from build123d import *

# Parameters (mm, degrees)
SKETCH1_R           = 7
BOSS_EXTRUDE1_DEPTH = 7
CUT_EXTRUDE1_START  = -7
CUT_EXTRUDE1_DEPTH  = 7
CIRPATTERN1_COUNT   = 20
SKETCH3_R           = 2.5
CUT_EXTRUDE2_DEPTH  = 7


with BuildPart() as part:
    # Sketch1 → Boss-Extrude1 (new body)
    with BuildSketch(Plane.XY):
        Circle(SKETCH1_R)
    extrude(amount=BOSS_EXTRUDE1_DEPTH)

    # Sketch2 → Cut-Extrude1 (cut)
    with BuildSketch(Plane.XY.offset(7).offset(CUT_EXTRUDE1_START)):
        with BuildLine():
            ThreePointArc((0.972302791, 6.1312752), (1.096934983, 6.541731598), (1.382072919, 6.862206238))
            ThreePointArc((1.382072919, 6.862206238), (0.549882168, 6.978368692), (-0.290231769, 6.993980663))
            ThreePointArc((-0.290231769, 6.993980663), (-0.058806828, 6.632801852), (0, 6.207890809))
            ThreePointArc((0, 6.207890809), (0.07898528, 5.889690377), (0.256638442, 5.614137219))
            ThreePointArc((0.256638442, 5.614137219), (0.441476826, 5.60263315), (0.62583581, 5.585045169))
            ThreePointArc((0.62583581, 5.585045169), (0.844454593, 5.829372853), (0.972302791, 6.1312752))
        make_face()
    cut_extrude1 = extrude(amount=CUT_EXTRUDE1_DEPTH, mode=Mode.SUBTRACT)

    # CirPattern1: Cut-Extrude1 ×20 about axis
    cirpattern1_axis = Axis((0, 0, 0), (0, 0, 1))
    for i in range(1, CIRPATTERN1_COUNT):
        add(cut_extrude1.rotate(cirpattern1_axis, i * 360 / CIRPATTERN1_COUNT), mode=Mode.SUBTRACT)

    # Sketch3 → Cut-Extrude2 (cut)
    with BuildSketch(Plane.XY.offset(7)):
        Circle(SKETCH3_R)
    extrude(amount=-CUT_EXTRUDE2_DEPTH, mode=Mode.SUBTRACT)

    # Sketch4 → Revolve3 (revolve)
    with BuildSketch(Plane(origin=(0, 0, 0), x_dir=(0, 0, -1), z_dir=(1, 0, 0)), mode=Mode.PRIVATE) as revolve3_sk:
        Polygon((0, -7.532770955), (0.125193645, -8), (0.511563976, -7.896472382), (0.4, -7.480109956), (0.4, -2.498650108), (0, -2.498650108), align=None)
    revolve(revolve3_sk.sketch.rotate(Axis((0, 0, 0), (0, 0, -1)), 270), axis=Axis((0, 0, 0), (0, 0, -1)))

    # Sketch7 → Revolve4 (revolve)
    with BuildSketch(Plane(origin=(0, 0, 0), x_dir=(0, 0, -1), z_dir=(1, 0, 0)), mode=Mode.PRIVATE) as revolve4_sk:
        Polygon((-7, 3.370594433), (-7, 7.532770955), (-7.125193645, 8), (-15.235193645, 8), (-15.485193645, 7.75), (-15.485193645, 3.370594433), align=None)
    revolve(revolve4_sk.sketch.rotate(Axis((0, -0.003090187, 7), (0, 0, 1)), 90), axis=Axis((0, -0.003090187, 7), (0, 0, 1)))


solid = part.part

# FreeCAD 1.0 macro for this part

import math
import FreeCAD as App
import Part
import Sketcher
Q = App.Units.Quantity


def add_polygon(sketch, points):
    """Adds a closed chain of lines whose ends are joined by coincident constraints."""
    first, n = sketch.GeometryCount, len(points)
    for a, b in zip(points, points[1:] + points[:1]):
        sketch.addGeometry(Part.LineSegment(App.Vector(*a, 0), App.Vector(*b, 0)), False)
    for i in range(n):
        sketch.addConstraint(Sketcher.Constraint("Coincident", first + i, 2, first + (i + 1) % n, 1))

doc = App.newDocument("Part")
body = doc.addObject("PartDesign::Body", "Body")

# Sketch on XY plane
sketch1 = body.newObject("Sketcher::SketchObject", "Sketch")
sketch1.AttachmentSupport = (doc.getObject("XY_Plane"), [""])
sketch1.MapMode = "FlatFace"
sketch1.addGeometry(Part.Circle(App.Vector(0, 0, 0), App.Vector(0, 0, 1), 7), False)
sketch1.addConstraint(Sketcher.Constraint("Coincident", 0, 3, -1, 1))
sketch1.addConstraint(Sketcher.Constraint("Diameter", 0, 14.0))
pad1 = body.newObject("PartDesign::Pad", "Pad")
pad1.Profile = sketch1
pad1.Length = 7

# Sketch on XY plane
sketch2 = body.newObject("Sketcher::SketchObject", "Sketch001")
sketch2.AttachmentSupport = (doc.getObject("XY_Plane"), [""])
sketch2.MapMode = "FlatFace"
sketch2.addGeometry(Part.ArcOfCircle(Part.Circle(App.Vector(1.969213, 6.052721, 0), App.Vector(0, 0, 1), 1), math.radians(125.954293), math.radians(175.494511)), False)
sketch2.addGeometry(Part.ArcOfCircle(Part.Circle(App.Vector(0, 0, 0), App.Vector(0, 0, 1), 7), math.radians(78.612762), math.radians(92.376261)), False)
sketch2.addGeometry(Part.ArcOfCircle(Part.Circle(App.Vector(-0.99691, 6.286445, 0), App.Vector(0, 0, 1), 1), math.radians(-4.505489), math.radians(45.034729)), False)
sketch2.addGeometry(Part.ArcOfCircle(Part.Circle(App.Vector(0.99691, 6.286445, 0), App.Vector(0, 0, 1), 1), math.radians(-175.494511), math.radians(-137.754537)), False)
sketch2.addGeometry(Part.ArcOfCircle(Part.Circle(App.Vector(0, 0, 0), App.Vector(0, 0, 1), 5.62), math.radians(83.606356), math.radians(87.382666)), False)
sketch2.addGeometry(Part.ArcOfCircle(Part.Circle(App.Vector(0, 6.365, 0), App.Vector(0, 0, 1), 1), math.radians(-51.25644), math.radians(-13.516466)), False)
sketch2.addConstraint(Sketcher.Constraint("Coincident", 0, 1, 1, 1))
sketch2.addConstraint(Sketcher.Constraint("Coincident", 1, 2, 2, 2))
sketch2.addConstraint(Sketcher.Constraint("Coincident", 2, 1, 3, 1))
sketch2.addConstraint(Sketcher.Constraint("Coincident", 3, 2, 4, 2))
sketch2.addConstraint(Sketcher.Constraint("Coincident", 4, 1, 5, 1))
sketch2.addConstraint(Sketcher.Constraint("Coincident", 5, 2, 0, 2))
sketch2.addConstraint(Sketcher.Constraint("Coincident", 1, 3, -1, 1))
sketch2.addConstraint(Sketcher.Constraint("Coincident", 4, 3, -1, 1))
sketch2.addConstraint(Sketcher.Constraint("Equal", 0, 2))
sketch2.addConstraint(Sketcher.Constraint("Equal", 2, 3))
sketch2.addConstraint(Sketcher.Constraint("Equal", 3, 5))
sketch2.addConstraint(Sketcher.Constraint("Symmetric", 2, 3, 3, 3, -2))
sketch2.addConstraint(Sketcher.Constraint("PointOnObject", 5, 3, -2))
sketch2.addConstraint(Sketcher.Constraint("Radius", 0, 1.0))
sketch2.addConstraint(Sketcher.Constraint("Radius", 1, 7.0))
sketch2.addConstraint(Sketcher.Constraint("Radius", 4, 5.62))
sketch2.addConstraint(Sketcher.Constraint("DistanceY", -1, 1, 5, 3, 6.365))
sketch2.addConstraint(Sketcher.Constraint("DistanceY", 4, 1, 3, 3, 0.7014))
sketch2.addConstraint(Sketcher.Constraint("DistanceY", -1, 1, 0, 3, 6.052721))
sketch2.addConstraint(Sketcher.Constraint("DistanceX", 2, 3, -1, 1, 0.99691))
sketch2.addConstraint(Sketcher.Constraint("DistanceY", 3, 3, 0, 1, 0.575761))
pocket1 = body.newObject("PartDesign::Pocket", "Pocket")
pocket1.Profile = sketch2
pocket1.Length = 7
pocket1.Reversed = True
doc.recompute()

polarpattern = body.newObject("PartDesign::PolarPattern", "PolarPattern")
polarpattern.Originals = [pocket1]
polarpattern.Axis = (doc.getObject("Z_Axis"), [""])
polarpattern.Angle = 360
polarpattern.Occurrences = 20
body.Tip = polarpattern

# Sketch on XY plane
sketch3 = body.newObject("Sketcher::SketchObject", "Sketch002")
sketch3.AttachmentSupport = (doc.getObject("XY_Plane"), [""])
sketch3.MapMode = "FlatFace"
sketch3.AttachmentOffset = App.Placement(App.Vector(0, 0, 7), App.Rotation())
sketch3.addGeometry(Part.Circle(App.Vector(0, 0, 0), App.Vector(0, 0, 1), 2.5), False)
sketch3.addConstraint(Sketcher.Constraint("Coincident", 0, 3, -1, 1))
sketch3.addConstraint(Sketcher.Constraint("Diameter", 0, 5.0))
pocket2 = body.newObject("PartDesign::Pocket", "Pocket001")
pocket2.Profile = sketch3
pocket2.Length = 7

# Sketch on YZ plane
sketch4 = body.newObject("Sketcher::SketchObject", "Sketch003")
sketch4.AttachmentSupport = (doc.getObject("YZ_Plane"), [""])
sketch4.MapMode = "FlatFace"
add_polygon(sketch4, [(-7.532771, 0), (-8, -0.125194), (-7.896472, -0.511564), (-7.48011, -0.4), (-2.49865, -0.4), (-2.49865, 0)])  # lines 0-5
sketch4.addConstraint(Sketcher.Constraint("Horizontal", 3))
sketch4.addConstraint(Sketcher.Constraint("Vertical", 4))
sketch4.addConstraint(Sketcher.Constraint("Horizontal", 5))
sketch4.addConstraint(Sketcher.Constraint("PointOnObject", 4, 2, -1))
sketch4.addConstraint(Sketcher.Constraint("Perpendicular", 0, 1))
sketch4.addConstraint(Sketcher.Constraint("Perpendicular", 1, 2))
sketch4.addConstraint(Sketcher.Constraint("Angle", 0, Q("-165 deg")))
sketch4.addConstraint(Sketcher.Constraint("DistanceY", 4, 1, 4, 2, 0.4))
sketch4.addConstraint(Sketcher.Constraint("DistanceX", 0, 2, -1, 1, 8.0))
sketch4.addConstraint(Sketcher.Constraint("Distance", 1, 0.4))
sketch4.addConstraint(Sketcher.Constraint("DistanceX", 3, 1, 3, 2, 4.98146))
sketch4.addConstraint(Sketcher.Constraint("DistanceX", 1, 2, 5, 2, 0.363701))
revolution = body.newObject("PartDesign::Revolution", "Revolution")
revolution.Profile = sketch4
revolution.ReferenceAxis = (sketch4, ["V_Axis"])
revolution.Angle = 360

# Sketch on YZ plane
sketch5 = body.newObject("Sketcher::SketchObject", "Sketch004")
sketch5.AttachmentSupport = (doc.getObject("YZ_Plane"), [""])
sketch5.MapMode = "FlatFace"
add_polygon(sketch5, [(3.370594, 7), (7.532771, 7), (8, 7.125194), (8, 15.235194), (7.75, 15.485194), (3.370594, 15.485194)])  # lines 0-5
sketch5.addGeometry(Part.LineSegment(App.Vector(-0.00309, 7, 0), App.Vector(-0.00309, 15.485194, 0)), True)  # axis
sketch5.addConstraint(Sketcher.Constraint("Horizontal", 0))
sketch5.addConstraint(Sketcher.Constraint("Vertical", 2))
sketch5.addConstraint(Sketcher.Constraint("Horizontal", 4))
sketch5.addConstraint(Sketcher.Constraint("Vertical", 5))
sketch5.addConstraint(Sketcher.Constraint("Vertical", 6))
sketch5.addConstraint(Sketcher.Constraint("Horizontal", 5, 2, 6, 1))
sketch5.addConstraint(Sketcher.Constraint("Horizontal", 4, 2, 6, 2))
sketch5.addConstraint(Sketcher.Constraint("Angle", 1, Q("15 deg")))
sketch5.addConstraint(Sketcher.Constraint("Angle", 3, Q("135 deg")))
sketch5.addConstraint(Sketcher.Constraint("DistanceY", -1, 1, 0, 2, 7.0))
sketch5.addConstraint(Sketcher.Constraint("DistanceX", -1, 1, 1, 2, 8.0))
sketch5.addConstraint(Sketcher.Constraint("DistanceY", 2, 1, 2, 2, 8.11))
sketch5.addConstraint(Sketcher.Constraint("DistanceX", -1, 1, 3, 2, 7.75))
sketch5.addConstraint(Sketcher.Constraint("Distance", 1, 0.483711))
sketch5.addConstraint(Sketcher.Constraint("DistanceX", 0, 1, 0, 2, 4.162177))
sketch5.addConstraint(Sketcher.Constraint("DistanceX", 6, 1, -1, 1, 0.00309))
revolution2 = body.newObject("PartDesign::Revolution", "Revolution001")
revolution2.Profile = sketch5
revolution2.ReferenceAxis = (sketch5, ["Axis0"])
revolution2.Angle = 360

doc.recompute()
